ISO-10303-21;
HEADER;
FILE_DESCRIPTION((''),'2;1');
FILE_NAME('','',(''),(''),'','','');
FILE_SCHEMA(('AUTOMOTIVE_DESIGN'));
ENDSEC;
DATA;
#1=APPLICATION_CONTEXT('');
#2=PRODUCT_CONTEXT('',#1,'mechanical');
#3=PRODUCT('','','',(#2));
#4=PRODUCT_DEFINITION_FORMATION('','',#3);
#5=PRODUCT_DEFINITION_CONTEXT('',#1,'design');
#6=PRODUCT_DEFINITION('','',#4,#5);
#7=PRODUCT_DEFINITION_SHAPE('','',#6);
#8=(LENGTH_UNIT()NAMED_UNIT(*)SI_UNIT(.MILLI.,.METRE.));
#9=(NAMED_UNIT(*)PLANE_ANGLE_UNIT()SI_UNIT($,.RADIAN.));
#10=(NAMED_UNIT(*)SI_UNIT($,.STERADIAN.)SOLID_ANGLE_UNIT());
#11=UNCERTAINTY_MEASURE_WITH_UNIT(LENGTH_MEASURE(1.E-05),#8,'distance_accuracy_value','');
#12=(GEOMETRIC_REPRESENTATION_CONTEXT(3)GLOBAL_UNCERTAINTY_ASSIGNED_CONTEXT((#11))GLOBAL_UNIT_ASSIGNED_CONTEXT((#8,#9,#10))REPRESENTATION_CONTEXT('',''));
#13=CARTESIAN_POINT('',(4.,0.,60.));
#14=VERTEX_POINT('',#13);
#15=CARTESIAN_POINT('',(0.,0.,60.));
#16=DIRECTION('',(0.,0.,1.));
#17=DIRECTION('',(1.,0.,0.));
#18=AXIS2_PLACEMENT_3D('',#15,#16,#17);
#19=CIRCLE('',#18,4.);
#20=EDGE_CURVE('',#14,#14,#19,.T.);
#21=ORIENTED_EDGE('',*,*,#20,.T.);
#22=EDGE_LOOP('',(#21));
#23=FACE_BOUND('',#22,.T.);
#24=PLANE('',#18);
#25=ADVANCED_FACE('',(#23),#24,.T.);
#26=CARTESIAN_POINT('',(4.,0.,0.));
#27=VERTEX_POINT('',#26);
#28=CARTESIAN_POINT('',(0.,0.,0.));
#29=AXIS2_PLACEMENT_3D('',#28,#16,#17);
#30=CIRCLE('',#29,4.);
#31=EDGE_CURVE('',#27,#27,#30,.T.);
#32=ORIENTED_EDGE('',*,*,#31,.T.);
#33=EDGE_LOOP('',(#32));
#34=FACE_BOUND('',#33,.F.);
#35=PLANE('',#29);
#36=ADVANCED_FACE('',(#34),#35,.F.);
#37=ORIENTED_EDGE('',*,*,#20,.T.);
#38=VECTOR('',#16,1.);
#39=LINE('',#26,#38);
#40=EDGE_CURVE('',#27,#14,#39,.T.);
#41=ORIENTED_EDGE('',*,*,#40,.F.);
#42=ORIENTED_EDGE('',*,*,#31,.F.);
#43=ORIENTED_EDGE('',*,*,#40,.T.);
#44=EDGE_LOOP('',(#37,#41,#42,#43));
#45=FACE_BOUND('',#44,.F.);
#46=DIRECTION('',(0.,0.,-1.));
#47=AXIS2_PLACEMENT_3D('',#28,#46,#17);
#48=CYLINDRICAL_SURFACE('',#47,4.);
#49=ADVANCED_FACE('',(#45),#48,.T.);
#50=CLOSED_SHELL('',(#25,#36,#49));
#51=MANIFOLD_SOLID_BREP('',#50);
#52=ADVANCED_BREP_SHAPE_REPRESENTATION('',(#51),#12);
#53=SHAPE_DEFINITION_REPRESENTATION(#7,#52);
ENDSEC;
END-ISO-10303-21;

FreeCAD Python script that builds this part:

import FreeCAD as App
import Part
import Sketcher

V = App.Vector
Q = App.Units.Quantity

doc = App.newDocument("Part")
body = doc.addObject("PartDesign::Body", "Body")

sketch1 = body.newObject("Sketcher::SketchObject", "Sketch")
sketch1.AttachmentSupport = (doc.getObject("XY_Plane"), [""])
sketch1.MapMode = "FlatFace"
sketch1.addGeometry(Part.Circle(V(0, 0, 0), V(0, 0, 1), 4), False)
sketch1.addConstraint(Sketcher.Constraint("Coincident", 0, 3, -1, 1))
sketch1.addConstraint(Sketcher.Constraint("Diameter", 0, Q("8 mm")))
pad1 = body.newObject("PartDesign::Pad", "Pad")
pad1.Profile = sketch1
pad1.Length = 60

doc.recompute()
